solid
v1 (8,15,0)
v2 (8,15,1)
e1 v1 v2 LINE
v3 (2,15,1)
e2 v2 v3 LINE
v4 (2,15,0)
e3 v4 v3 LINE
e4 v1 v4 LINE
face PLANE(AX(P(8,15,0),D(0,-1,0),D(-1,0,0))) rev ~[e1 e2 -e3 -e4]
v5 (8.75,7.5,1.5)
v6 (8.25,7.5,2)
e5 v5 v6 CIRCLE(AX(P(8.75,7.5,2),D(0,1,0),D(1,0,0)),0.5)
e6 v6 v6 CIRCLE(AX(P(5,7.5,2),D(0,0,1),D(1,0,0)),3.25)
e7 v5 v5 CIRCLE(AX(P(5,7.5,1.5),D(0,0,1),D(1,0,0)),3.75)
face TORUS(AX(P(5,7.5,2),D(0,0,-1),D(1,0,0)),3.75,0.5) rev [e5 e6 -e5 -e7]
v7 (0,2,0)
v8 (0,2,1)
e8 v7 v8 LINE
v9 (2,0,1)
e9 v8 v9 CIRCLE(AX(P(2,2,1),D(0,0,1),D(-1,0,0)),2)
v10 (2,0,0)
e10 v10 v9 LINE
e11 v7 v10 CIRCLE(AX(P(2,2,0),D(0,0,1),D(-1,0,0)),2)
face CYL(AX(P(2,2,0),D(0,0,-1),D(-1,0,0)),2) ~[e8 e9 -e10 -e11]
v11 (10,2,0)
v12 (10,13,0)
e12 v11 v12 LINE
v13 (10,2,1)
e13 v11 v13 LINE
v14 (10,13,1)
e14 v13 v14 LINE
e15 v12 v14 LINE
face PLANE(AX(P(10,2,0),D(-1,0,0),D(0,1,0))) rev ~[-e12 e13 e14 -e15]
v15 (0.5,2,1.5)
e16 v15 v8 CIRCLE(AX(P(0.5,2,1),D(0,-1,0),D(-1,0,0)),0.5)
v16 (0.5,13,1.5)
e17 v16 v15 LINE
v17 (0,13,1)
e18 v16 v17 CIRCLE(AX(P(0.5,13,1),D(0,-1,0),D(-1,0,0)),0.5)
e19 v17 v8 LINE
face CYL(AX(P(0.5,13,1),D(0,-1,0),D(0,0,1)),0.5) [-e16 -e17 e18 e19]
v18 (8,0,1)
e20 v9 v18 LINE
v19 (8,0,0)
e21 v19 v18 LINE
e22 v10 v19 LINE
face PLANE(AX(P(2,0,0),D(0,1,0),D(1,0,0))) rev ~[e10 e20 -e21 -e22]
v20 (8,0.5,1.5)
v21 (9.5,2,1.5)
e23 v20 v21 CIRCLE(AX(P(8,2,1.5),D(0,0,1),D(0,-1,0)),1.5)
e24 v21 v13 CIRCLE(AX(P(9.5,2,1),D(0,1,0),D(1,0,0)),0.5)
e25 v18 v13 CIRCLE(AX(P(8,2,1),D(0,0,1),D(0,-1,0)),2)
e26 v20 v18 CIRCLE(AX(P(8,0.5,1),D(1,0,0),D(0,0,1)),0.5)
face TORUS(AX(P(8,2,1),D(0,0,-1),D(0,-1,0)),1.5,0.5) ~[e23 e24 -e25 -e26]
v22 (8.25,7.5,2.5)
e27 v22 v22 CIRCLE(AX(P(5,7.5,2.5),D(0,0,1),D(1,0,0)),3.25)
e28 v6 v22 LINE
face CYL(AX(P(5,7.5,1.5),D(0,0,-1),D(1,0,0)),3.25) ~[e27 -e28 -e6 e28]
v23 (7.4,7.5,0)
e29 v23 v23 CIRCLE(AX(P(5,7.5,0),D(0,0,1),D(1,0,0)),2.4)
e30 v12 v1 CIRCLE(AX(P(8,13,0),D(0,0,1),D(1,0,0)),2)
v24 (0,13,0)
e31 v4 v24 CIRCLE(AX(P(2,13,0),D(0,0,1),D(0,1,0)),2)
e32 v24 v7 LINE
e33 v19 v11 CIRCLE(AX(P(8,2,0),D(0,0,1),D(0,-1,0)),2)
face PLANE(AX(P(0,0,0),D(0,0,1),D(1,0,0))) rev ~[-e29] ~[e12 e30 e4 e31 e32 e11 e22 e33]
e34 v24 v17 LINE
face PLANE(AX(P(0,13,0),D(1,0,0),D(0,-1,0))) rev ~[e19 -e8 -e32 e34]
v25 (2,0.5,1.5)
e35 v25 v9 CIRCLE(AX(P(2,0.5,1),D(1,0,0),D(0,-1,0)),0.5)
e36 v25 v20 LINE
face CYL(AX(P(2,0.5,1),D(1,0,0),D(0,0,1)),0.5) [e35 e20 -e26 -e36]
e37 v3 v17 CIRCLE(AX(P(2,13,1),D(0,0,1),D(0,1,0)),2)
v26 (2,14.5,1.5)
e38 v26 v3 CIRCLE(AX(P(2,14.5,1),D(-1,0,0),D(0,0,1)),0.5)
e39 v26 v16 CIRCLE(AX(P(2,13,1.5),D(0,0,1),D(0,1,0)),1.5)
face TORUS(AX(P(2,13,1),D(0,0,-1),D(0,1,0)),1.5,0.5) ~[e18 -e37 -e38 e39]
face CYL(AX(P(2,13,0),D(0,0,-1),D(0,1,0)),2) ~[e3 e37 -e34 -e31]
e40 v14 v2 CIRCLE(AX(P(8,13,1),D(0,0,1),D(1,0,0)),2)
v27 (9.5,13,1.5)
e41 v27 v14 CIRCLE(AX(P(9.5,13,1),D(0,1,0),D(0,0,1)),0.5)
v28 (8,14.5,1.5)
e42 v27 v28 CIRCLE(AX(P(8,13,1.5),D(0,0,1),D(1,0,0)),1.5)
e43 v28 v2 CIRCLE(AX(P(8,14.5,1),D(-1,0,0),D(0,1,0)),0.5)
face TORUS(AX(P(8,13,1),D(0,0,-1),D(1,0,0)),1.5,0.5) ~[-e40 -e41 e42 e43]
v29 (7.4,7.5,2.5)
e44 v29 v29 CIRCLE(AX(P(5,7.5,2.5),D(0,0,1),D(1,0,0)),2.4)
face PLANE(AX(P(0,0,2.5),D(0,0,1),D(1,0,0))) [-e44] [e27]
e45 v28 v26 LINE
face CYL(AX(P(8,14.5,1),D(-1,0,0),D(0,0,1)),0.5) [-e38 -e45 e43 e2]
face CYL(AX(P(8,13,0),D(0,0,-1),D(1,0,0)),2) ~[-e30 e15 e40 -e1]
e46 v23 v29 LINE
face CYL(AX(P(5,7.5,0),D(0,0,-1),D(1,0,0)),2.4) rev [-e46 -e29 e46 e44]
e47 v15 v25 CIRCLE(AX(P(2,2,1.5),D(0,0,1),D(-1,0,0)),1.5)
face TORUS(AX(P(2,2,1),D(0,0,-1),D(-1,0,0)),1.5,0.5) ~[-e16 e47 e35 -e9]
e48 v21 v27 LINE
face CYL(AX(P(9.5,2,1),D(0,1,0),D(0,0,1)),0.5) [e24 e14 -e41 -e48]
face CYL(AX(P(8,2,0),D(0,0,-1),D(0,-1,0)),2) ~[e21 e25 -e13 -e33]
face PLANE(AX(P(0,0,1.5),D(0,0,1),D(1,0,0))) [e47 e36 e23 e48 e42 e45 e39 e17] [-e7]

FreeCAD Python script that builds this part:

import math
import FreeCAD as App
import Part
import Sketcher
from FreeCAD import Vector


def edges_at(feature, points):
    """Names of the edges that pass closest to the given points."""
    edges = feature.Shape.Edges
    near = lambda p: min(range(len(edges)), key=lambda i: edges[i].distToShape(Part.Vertex(*p))[0])
    return sorted({f"Edge{near(p) + 1}" for p in points})

doc = App.newDocument("Part")
body = doc.addObject("PartDesign::Body", "Body")

sketch1 = doc.addObject("Sketcher::SketchObject", "Sketch")
body.addObject(sketch1)
sketch1.AttachmentSupport = (doc.XY_Plane, [""])
sketch1.MapMode = "FlatFace"
sketch1.addGeometry([
    Part.ArcOfCircle(Part.Circle(Vector(2, 2, 0), Vector(0, 0, 1), 2), math.radians(180), math.radians(270)),
    Part.LineSegment(Vector(2, 0, 0), Vector(8, 0, 0)),
    Part.ArcOfCircle(Part.Circle(Vector(8, 2, 0), Vector(0, 0, 1), 2), math.radians(-90), math.radians(0)),
    Part.LineSegment(Vector(10, 2, 0), Vector(10, 13, 0)),
    Part.ArcOfCircle(Part.Circle(Vector(8, 13, 0), Vector(0, 0, 1), 2), math.radians(0), math.radians(90)),
    Part.LineSegment(Vector(8, 15, 0), Vector(2, 15, 0)),
    Part.ArcOfCircle(Part.Circle(Vector(2, 13, 0), Vector(0, 0, 1), 2), math.radians(90), math.radians(180)),
    Part.LineSegment(Vector(0, 13, 0), Vector(0, 2, 0)),
    Part.Circle(Vector(5, 7.5, 0), Vector(0, 0, 1), 2.4),
], False)
sketch1.addConstraint([
    Sketcher.Constraint("Tangent", 0, 2, 1, 1),
    Sketcher.Constraint("Tangent", 1, 2, 2, 1),
    Sketcher.Constraint("Tangent", 2, 2, 3, 1),
    Sketcher.Constraint("Tangent", 3, 2, 4, 1),
    Sketcher.Constraint("Tangent", 4, 2, 5, 1),
    Sketcher.Constraint("Tangent", 5, 2, 6, 1),
    Sketcher.Constraint("Tangent", 6, 2, 7, 1),
    Sketcher.Constraint("Tangent", 7, 2, 0, 1),
    Sketcher.Constraint("Horizontal", 1),
    Sketcher.Constraint("Vertical", 3),
    Sketcher.Constraint("Horizontal", 5),
    Sketcher.Constraint("Vertical", 7),
    Sketcher.Constraint("Equal", 0, 2),
    Sketcher.Constraint("Equal", 2, 4),
    Sketcher.Constraint("Equal", 4, 6),
    Sketcher.Constraint("PointOnObject", 0, 2, -1),
    Sketcher.Constraint("PointOnObject", 6, 2, -2),
    Sketcher.Constraint("Radius", 0, 2.0),
    Sketcher.Constraint("Diameter", 8, 4.8),
    Sketcher.Constraint("DistanceX", -1, 1, 2, 2, 10.0),
    Sketcher.Constraint("DistanceY", -1, 1, 4, 2, 15.0),
    Sketcher.Constraint("DistanceX", -1, 1, 8, 3, 5.0),
    Sketcher.Constraint("DistanceY", -1, 1, 8, 3, 7.5),
])
pad1 = doc.addObject("PartDesign::Pad", "Pad")
body.addObject(pad1)
pad1.Profile = sketch1
pad1.Length = 1.5

sketch2 = doc.addObject("Sketcher::SketchObject", "Sketch001")
body.addObject(sketch2)
sketch2.AttachmentSupport = (doc.XY_Plane, [""])
sketch2.MapMode = "FlatFace"
sketch2.AttachmentOffset = App.Placement(Vector(0, 0, 1.5), App.Rotation())
sketch2.addGeometry([
    Part.Circle(Vector(5, 7.5, 0), Vector(0, 0, 1), 3.25),
    Part.Circle(Vector(5, 7.5, 0), Vector(0, 0, 1), 2.4),
], False)
sketch2.addConstraint([
    Sketcher.Constraint("Coincident", 1, 3, 0, 3),
    Sketcher.Constraint("Diameter", 0, 6.5),
    Sketcher.Constraint("Diameter", 1, 4.8),
    Sketcher.Constraint("DistanceX", -1, 1, 0, 3, 5.0),
    Sketcher.Constraint("DistanceY", -1, 1, 0, 3, 7.5),
])
pad2 = doc.addObject("PartDesign::Pad", "Pad001")
body.addObject(pad2)
pad2.Profile = sketch2
pad2.Length = 1
doc.recompute()

fillet = doc.addObject("PartDesign::Fillet", "Fillet")
body.addObject(fillet)
fillet.Base = (pad2, edges_at(pad2, [(1.75, 7.5, 1.5)]))
fillet.Radius = 0.5
doc.recompute()

fillet2 = doc.addObject("PartDesign::Fillet", "Fillet001")
body.addObject(fillet2)
fillet2.Base = (fillet, edges_at(fillet, [
    (0.586, 0.586, 1.5),
    (5, 0, 1.5),
    (9.414, 0.586, 1.5),
    (10, 7.5, 1.5),
    (9.414, 14.414, 1.5),
    (5, 15, 1.5),
    (0.586, 14.414, 1.5),
    (0, 7.5, 1.5),
]))
fillet2.Radius = 0.5

doc.recompute()
